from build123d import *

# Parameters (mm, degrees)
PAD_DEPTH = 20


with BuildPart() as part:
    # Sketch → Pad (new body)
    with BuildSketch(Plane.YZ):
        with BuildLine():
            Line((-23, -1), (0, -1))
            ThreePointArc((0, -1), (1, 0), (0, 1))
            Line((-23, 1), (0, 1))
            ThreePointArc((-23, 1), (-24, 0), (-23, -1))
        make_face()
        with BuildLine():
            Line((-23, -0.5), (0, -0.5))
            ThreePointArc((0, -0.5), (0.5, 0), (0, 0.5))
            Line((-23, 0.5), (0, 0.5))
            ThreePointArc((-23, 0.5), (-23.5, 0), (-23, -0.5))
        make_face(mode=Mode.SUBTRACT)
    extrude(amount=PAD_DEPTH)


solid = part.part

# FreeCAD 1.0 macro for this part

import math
import FreeCAD as App
import Part
import Sketcher

V = App.Vector
Q = App.Units.Quantity

doc = App.newDocument("Part")
body = doc.addObject("PartDesign::Body", "Body")

# Sketch on YZ plane
sketch1 = body.newObject("Sketcher::SketchObject", "Sketch")
sketch1.AttachmentSupport = (doc.getObject("YZ_Plane"), [""])
sketch1.MapMode = "FlatFace"
sketch1.addGeometry(Part.LineSegment(V(-23, -1, 0), V(0, -1, 0)), False)
sketch1.addGeometry(Part.ArcOfCircle(Part.Circle(V(0, 0, 0), V(0, 0, 1), 1), math.radians(-90), math.radians(90)), False)
sketch1.addGeometry(Part.LineSegment(V(0, 1, 0), V(-23, 1, 0)), False)
sketch1.addGeometry(Part.ArcOfCircle(Part.Circle(V(-23, 0, 0), V(0, 0, 1), 1), math.radians(90), math.radians(270)), False)
sketch1.addGeometry(Part.LineSegment(V(0, -0.5, 0), V(-23, -0.5, 0)), False)
sketch1.addGeometry(Part.ArcOfCircle(Part.Circle(V(-23, 0, 0), V(0, 0, 1), 0.5), math.radians(90), math.radians(270)), False)
sketch1.addGeometry(Part.LineSegment(V(-23, 0.5, 0), V(0, 0.5, 0)), False)
sketch1.addGeometry(Part.ArcOfCircle(Part.Circle(V(0, 0, 0), V(0, 0, 1), 0.5), math.radians(-90), math.radians(90)), False)
sketch1.addConstraint(Sketcher.Constraint("Tangent", 0, 2, 1, 1))
sketch1.addConstraint(Sketcher.Constraint("Tangent", 1, 2, 2, 1))
sketch1.addConstraint(Sketcher.Constraint("Tangent", 2, 2, 3, 1))
sketch1.addConstraint(Sketcher.Constraint("Tangent", 3, 2, 0, 1))
sketch1.addConstraint(Sketcher.Constraint("Tangent", 4, 2, 5, 2))
sketch1.addConstraint(Sketcher.Constraint("Tangent", 5, 1, 6, 1))
sketch1.addConstraint(Sketcher.Constraint("Tangent", 6, 2, 7, 2))
sketch1.addConstraint(Sketcher.Constraint("Tangent", 7, 1, 4, 1))
sketch1.addConstraint(Sketcher.Constraint("Horizontal", 0))
sketch1.addConstraint(Sketcher.Constraint("Horizontal", 2))
sketch1.addConstraint(Sketcher.Constraint("Horizontal", 4))
sketch1.addConstraint(Sketcher.Constraint("Horizontal", 6))
sketch1.addConstraint(Sketcher.Constraint("Coincident", 1, 3, -1, 1))
sketch1.addConstraint(Sketcher.Constraint("Coincident", 7, 3, -1, 1))
sketch1.addConstraint(Sketcher.Constraint("Vertical", 5, 3, 2, 2))
sketch1.addConstraint(Sketcher.Constraint("Radius", 1, Q("1 mm")))
sketch1.addConstraint(Sketcher.Constraint("Radius", 5, Q("0.5 mm")))
sketch1.addConstraint(Sketcher.Constraint("DistanceX", 0, 1, 0, 2, Q("23 mm")))
pad1 = body.newObject("PartDesign::Pad", "Pad")
pad1.Profile = sketch1
pad1.Length = 20

doc.recompute()
